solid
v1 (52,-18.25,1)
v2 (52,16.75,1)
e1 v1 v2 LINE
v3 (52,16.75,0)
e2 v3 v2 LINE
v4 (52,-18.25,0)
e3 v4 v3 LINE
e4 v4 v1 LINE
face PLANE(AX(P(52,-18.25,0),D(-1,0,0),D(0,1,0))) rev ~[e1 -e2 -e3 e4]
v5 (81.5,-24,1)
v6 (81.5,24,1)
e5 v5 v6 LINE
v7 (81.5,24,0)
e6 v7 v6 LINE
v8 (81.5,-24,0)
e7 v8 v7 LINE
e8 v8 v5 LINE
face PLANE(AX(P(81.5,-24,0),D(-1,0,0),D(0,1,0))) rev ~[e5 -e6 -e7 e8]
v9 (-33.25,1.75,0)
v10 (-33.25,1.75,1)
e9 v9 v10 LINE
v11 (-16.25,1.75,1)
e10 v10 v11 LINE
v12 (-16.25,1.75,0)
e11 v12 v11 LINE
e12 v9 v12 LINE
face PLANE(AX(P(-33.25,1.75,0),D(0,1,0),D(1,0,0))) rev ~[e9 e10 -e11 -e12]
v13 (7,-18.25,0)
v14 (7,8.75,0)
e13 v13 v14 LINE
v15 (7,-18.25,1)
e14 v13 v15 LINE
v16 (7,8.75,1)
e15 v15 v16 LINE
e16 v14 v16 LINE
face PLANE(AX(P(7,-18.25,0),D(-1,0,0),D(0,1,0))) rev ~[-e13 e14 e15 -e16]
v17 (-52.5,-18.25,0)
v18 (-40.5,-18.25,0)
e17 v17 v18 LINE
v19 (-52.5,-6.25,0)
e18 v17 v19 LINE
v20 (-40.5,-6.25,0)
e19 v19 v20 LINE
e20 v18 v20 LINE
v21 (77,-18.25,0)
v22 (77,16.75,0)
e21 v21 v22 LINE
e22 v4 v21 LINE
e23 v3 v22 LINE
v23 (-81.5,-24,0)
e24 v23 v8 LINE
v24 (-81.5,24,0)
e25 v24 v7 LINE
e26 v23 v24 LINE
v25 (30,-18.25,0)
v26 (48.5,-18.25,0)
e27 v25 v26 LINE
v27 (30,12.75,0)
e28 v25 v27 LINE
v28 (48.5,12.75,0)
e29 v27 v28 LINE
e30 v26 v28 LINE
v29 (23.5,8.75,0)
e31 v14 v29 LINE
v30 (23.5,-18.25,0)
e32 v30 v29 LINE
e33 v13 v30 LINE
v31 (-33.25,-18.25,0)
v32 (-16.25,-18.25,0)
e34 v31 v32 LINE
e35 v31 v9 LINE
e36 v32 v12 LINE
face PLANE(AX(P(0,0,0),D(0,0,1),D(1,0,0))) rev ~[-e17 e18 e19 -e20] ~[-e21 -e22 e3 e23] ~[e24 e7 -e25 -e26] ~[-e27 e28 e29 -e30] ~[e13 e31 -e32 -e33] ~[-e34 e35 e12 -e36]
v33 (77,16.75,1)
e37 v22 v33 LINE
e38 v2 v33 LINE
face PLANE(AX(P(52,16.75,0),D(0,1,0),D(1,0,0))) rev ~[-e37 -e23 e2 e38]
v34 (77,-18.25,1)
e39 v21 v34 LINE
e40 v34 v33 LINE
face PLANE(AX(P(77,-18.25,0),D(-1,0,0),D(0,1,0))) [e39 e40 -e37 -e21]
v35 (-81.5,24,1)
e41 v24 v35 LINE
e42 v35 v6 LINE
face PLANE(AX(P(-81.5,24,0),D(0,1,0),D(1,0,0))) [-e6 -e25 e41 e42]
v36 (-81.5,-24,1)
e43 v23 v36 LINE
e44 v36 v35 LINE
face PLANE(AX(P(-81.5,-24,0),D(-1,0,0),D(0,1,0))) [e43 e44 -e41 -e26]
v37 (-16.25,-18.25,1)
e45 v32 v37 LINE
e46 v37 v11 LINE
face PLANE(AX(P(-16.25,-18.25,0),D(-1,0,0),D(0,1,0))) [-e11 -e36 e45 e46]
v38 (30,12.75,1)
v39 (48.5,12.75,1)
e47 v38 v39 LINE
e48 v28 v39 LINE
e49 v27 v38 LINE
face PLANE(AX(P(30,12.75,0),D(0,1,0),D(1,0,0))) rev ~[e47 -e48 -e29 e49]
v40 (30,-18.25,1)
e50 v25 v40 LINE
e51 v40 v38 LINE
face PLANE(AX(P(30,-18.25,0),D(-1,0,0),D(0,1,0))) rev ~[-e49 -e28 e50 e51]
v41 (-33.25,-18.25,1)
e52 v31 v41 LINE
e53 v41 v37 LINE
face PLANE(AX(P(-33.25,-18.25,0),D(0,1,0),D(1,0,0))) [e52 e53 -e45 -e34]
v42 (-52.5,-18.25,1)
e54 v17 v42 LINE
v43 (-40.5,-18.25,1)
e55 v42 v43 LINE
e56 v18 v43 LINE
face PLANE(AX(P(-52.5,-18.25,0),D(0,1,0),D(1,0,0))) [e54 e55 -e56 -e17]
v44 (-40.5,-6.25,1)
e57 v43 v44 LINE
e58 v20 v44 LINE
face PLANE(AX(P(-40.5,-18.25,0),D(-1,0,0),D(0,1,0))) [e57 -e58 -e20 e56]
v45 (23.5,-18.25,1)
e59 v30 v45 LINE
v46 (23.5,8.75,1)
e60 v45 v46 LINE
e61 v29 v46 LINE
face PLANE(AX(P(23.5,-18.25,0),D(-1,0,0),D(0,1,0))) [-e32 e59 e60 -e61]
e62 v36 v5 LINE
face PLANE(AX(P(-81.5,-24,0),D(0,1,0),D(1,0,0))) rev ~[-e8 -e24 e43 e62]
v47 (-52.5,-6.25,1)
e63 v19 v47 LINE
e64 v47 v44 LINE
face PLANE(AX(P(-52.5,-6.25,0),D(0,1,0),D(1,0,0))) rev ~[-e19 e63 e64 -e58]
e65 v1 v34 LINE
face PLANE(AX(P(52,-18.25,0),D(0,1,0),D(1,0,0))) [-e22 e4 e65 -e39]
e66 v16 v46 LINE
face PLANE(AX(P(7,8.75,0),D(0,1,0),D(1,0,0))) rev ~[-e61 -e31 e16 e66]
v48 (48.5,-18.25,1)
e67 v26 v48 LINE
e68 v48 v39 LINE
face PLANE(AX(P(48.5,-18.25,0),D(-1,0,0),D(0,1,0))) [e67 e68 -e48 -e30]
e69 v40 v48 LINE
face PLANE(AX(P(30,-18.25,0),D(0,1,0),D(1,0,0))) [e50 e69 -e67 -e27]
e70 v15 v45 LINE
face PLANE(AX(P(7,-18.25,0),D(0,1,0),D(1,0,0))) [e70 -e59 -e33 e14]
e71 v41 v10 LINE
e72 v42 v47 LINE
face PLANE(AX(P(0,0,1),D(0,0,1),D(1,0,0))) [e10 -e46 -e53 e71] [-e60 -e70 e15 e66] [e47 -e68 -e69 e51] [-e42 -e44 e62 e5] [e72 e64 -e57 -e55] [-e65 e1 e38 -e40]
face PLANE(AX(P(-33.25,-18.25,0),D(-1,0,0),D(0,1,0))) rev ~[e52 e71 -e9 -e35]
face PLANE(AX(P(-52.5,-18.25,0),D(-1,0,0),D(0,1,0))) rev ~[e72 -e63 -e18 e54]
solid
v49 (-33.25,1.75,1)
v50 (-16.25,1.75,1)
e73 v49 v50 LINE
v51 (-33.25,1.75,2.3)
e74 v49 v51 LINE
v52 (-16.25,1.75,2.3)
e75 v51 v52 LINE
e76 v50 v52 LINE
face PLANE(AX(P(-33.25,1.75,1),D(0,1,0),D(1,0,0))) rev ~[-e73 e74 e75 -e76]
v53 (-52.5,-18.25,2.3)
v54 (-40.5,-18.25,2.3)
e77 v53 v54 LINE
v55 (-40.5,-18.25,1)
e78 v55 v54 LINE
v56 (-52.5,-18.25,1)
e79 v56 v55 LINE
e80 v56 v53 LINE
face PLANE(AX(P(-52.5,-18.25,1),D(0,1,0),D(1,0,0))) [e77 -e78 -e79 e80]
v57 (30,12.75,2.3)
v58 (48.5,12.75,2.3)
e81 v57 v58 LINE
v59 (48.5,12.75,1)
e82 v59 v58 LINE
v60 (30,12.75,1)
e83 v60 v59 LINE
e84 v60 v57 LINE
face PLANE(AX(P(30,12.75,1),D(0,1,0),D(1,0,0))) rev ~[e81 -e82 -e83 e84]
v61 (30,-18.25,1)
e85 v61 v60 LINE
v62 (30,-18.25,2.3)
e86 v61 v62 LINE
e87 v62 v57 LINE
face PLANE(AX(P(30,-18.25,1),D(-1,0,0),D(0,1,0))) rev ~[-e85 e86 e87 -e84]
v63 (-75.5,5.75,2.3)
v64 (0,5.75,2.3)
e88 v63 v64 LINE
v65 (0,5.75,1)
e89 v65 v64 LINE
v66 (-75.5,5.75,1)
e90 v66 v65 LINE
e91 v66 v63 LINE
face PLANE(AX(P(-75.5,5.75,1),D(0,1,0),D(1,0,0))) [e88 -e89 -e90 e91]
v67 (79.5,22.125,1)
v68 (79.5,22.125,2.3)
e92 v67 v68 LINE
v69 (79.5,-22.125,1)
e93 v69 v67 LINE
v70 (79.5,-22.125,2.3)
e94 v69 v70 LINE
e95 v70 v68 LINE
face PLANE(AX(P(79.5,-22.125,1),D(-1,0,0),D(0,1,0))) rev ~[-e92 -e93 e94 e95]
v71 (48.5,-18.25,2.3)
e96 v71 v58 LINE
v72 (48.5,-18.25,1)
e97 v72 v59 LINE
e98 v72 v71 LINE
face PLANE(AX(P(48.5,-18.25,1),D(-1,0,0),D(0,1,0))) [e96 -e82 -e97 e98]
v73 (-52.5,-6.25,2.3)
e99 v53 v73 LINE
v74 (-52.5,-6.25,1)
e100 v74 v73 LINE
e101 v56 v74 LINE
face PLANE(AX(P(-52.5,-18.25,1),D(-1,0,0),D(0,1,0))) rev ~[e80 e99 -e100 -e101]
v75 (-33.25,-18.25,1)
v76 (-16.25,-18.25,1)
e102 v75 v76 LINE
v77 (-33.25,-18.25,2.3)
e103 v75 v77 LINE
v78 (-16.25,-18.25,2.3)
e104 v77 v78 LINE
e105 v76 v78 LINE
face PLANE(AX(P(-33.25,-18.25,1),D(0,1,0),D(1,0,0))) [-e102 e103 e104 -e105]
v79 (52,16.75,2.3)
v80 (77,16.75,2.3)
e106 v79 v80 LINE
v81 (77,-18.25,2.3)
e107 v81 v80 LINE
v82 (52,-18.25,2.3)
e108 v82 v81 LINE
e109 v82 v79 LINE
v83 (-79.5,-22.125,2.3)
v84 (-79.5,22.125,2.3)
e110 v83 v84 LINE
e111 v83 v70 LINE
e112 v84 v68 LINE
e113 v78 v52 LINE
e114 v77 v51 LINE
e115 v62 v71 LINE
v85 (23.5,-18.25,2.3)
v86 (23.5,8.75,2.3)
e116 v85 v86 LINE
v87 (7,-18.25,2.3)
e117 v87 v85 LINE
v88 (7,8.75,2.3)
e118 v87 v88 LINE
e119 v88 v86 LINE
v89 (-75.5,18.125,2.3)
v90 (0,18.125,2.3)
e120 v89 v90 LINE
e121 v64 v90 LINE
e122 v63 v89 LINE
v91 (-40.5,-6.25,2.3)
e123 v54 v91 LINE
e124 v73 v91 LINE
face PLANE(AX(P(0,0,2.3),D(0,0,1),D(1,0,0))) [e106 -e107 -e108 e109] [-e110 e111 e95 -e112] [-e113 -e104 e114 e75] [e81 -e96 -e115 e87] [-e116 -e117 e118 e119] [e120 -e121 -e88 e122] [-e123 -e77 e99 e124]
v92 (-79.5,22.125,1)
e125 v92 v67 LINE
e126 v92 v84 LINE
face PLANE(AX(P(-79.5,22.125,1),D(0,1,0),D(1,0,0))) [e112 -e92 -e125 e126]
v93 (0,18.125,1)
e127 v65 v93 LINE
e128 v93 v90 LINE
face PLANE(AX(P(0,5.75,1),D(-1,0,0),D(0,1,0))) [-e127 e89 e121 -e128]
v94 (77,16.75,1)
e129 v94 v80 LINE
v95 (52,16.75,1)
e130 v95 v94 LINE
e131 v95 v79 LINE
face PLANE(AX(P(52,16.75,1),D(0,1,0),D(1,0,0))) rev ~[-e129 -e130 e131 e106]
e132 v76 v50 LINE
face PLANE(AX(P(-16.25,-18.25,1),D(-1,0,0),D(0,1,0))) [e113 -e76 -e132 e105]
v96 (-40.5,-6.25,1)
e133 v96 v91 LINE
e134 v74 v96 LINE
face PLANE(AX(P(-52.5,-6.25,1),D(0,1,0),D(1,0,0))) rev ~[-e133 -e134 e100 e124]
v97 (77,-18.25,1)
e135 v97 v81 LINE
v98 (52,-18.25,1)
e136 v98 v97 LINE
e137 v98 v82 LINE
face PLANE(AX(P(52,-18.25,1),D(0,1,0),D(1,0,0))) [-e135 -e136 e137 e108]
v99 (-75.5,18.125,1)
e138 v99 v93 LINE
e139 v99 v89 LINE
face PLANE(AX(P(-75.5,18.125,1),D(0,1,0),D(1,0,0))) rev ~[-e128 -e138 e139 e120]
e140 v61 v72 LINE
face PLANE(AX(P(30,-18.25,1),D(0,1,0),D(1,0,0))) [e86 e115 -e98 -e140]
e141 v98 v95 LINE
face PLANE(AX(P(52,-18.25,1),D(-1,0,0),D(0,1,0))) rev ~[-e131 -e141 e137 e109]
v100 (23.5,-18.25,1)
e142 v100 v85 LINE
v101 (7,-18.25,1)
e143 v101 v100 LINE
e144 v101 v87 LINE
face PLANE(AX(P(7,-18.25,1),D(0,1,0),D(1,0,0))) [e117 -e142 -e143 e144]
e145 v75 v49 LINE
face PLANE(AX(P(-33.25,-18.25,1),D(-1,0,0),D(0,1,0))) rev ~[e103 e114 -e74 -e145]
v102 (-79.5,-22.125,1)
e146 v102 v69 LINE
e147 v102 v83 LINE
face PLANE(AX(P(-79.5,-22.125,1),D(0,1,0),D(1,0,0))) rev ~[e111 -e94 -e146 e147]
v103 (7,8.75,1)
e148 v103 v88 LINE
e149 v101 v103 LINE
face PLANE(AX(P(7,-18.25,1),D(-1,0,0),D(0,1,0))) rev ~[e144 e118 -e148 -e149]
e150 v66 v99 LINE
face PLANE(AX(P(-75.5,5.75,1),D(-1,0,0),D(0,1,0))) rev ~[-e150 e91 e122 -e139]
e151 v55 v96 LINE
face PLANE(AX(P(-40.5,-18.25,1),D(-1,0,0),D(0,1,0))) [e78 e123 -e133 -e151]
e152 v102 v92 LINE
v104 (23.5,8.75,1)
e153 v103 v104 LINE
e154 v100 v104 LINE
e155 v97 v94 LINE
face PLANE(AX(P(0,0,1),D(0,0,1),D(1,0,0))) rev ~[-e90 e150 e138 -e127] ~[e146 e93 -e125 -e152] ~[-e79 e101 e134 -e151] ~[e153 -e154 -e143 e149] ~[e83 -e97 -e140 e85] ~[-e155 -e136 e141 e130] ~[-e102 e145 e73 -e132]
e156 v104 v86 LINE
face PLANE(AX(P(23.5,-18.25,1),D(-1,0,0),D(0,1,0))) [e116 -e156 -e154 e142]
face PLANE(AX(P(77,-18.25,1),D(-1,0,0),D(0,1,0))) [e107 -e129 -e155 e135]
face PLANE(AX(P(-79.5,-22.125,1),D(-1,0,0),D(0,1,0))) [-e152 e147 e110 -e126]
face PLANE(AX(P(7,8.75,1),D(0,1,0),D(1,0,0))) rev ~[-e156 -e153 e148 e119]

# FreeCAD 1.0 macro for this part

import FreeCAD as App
import Part
import Sketcher
Q = App.Units.Quantity

doc = App.newDocument("Part")
body = doc.addObject("PartDesign::Body", "Body")

# Sketch on XY plane
sketch1 = body.newObject("Sketcher::SketchObject", "Sketch")
sketch1.AttachmentSupport = (doc.getObject("XY_Plane"), [""])
sketch1.MapMode = "FlatFace"
sketch1.AttachmentOffset = App.Placement(App.Vector(0, 0, 1), App.Rotation())
sketch1.addGeometry([
    Part.LineSegment(App.Vector(-79.5, 22.125, 0), App.Vector(-79.5, -22.125, 0)),  # 0
    Part.LineSegment(App.Vector(-79.5, -22.125, 0), App.Vector(79.5, -22.125, 0)),  # 1
    Part.LineSegment(App.Vector(79.5, -22.125, 0), App.Vector(79.5, 22.125, 0)),  # 2
    Part.LineSegment(App.Vector(79.5, 22.125, 0), App.Vector(-79.5, 22.125, 0)),  # 3
    Part.LineSegment(App.Vector(-40.5, -18.25, 0), App.Vector(-52.5, -18.25, 0)),  # 4
    Part.LineSegment(App.Vector(-52.5, -18.25, 0), App.Vector(-52.5, -6.25, 0)),  # 5
    Part.LineSegment(App.Vector(-52.5, -6.25, 0), App.Vector(-40.5, -6.25, 0)),  # 6
    Part.LineSegment(App.Vector(-40.5, -6.25, 0), App.Vector(-40.5, -18.25, 0)),  # 7
    Part.LineSegment(App.Vector(-16.25, -18.25, 0), App.Vector(-33.25, -18.25, 0)),  # 8
    Part.LineSegment(App.Vector(-33.25, -18.25, 0), App.Vector(-33.25, 1.75, 0)),  # 9
    Part.LineSegment(App.Vector(-33.25, 1.75, 0), App.Vector(-16.25, 1.75, 0)),  # 10
    Part.LineSegment(App.Vector(-16.25, 1.75, 0), App.Vector(-16.25, -18.25, 0)),  # 11
    Part.LineSegment(App.Vector(23.5, -18.25, 0), App.Vector(7, -18.25, 0)),  # 12
    Part.LineSegment(App.Vector(7, -18.25, 0), App.Vector(7, 8.75, 0)),  # 13
    Part.LineSegment(App.Vector(7, 8.75, 0), App.Vector(23.5, 8.75, 0)),  # 14
    Part.LineSegment(App.Vector(23.5, 8.75, 0), App.Vector(23.5, -18.25, 0)),  # 15
    Part.LineSegment(App.Vector(48.5, -18.25, 0), App.Vector(30, -18.25, 0)),  # 16
    Part.LineSegment(App.Vector(30, -18.25, 0), App.Vector(30, 12.75, 0)),  # 17
    Part.LineSegment(App.Vector(30, 12.75, 0), App.Vector(48.5, 12.75, 0)),  # 18
    Part.LineSegment(App.Vector(48.5, 12.75, 0), App.Vector(48.5, -18.25, 0)),  # 19
    Part.LineSegment(App.Vector(77, -18.25, 0), App.Vector(52, -18.25, 0)),  # 20
    Part.LineSegment(App.Vector(52, -18.25, 0), App.Vector(52, 16.75, 0)),  # 21
    Part.LineSegment(App.Vector(52, 16.75, 0), App.Vector(77, 16.75, 0)),  # 22
    Part.LineSegment(App.Vector(77, 16.75, 0), App.Vector(77, -18.25, 0)),  # 23
    Part.LineSegment(App.Vector(0, 5.75, 0), App.Vector(-75.5, 5.75, 0)),  # 24
    Part.LineSegment(App.Vector(-75.5, 5.75, 0), App.Vector(-75.5, 18.125, 0)),  # 25
    Part.LineSegment(App.Vector(-75.5, 18.125, 0), App.Vector(0, 18.125, 0)),  # 26
    Part.LineSegment(App.Vector(0, 18.125, 0), App.Vector(0, 5.75, 0)),  # 27
], False)
sketch1.addConstraint([
    Sketcher.Constraint("Coincident", 0, 2, 1, 1),
    Sketcher.Constraint("Coincident", 1, 2, 2, 1),
    Sketcher.Constraint("Coincident", 2, 2, 3, 1),
    Sketcher.Constraint("Coincident", 3, 2, 0, 1),
    Sketcher.Constraint("Coincident", 4, 2, 5, 1),
    Sketcher.Constraint("Coincident", 5, 2, 6, 1),
    Sketcher.Constraint("Coincident", 6, 2, 7, 1),
    Sketcher.Constraint("Coincident", 7, 2, 4, 1),
    Sketcher.Constraint("Coincident", 8, 2, 9, 1),
    Sketcher.Constraint("Coincident", 9, 2, 10, 1),
    Sketcher.Constraint("Coincident", 10, 2, 11, 1),
    Sketcher.Constraint("Coincident", 11, 2, 8, 1),
    Sketcher.Constraint("Coincident", 12, 2, 13, 1),
    Sketcher.Constraint("Coincident", 13, 2, 14, 1),
    Sketcher.Constraint("Coincident", 14, 2, 15, 1),
    Sketcher.Constraint("Coincident", 15, 2, 12, 1),
    Sketcher.Constraint("Coincident", 16, 2, 17, 1),
    Sketcher.Constraint("Coincident", 17, 2, 18, 1),
    Sketcher.Constraint("Coincident", 18, 2, 19, 1),
    Sketcher.Constraint("Coincident", 19, 2, 16, 1),
    Sketcher.Constraint("Coincident", 20, 2, 21, 1),
    Sketcher.Constraint("Coincident", 21, 2, 22, 1),
    Sketcher.Constraint("Coincident", 22, 2, 23, 1),
    Sketcher.Constraint("Coincident", 23, 2, 20, 1),
    Sketcher.Constraint("Coincident", 24, 2, 25, 1),
    Sketcher.Constraint("Coincident", 25, 2, 26, 1),
    Sketcher.Constraint("Coincident", 26, 2, 27, 1),
    Sketcher.Constraint("Coincident", 27, 2, 24, 1),
    Sketcher.Constraint("Vertical", 0),
    Sketcher.Constraint("Horizontal", 1),
    Sketcher.Constraint("Vertical", 2),
    Sketcher.Constraint("Horizontal", 3),
    Sketcher.Constraint("Horizontal", 4),
    Sketcher.Constraint("Vertical", 5),
    Sketcher.Constraint("Horizontal", 6),
    Sketcher.Constraint("Vertical", 7),
    Sketcher.Constraint("Horizontal", 8),
    Sketcher.Constraint("Vertical", 9),
    Sketcher.Constraint("Horizontal", 10),
    Sketcher.Constraint("Vertical", 11),
    Sketcher.Constraint("Horizontal", 12),
    Sketcher.Constraint("Vertical", 13),
    Sketcher.Constraint("Horizontal", 14),
    Sketcher.Constraint("Vertical", 15),
    Sketcher.Constraint("Horizontal", 16),
    Sketcher.Constraint("Vertical", 17),
    Sketcher.Constraint("Horizontal", 18),
    Sketcher.Constraint("Vertical", 19),
    Sketcher.Constraint("Horizontal", 20),
    Sketcher.Constraint("Vertical", 21),
    Sketcher.Constraint("Horizontal", 22),
    Sketcher.Constraint("Vertical", 23),
    Sketcher.Constraint("Horizontal", 24),
    Sketcher.Constraint("Vertical", 25),
    Sketcher.Constraint("Horizontal", 26),
    Sketcher.Constraint("Vertical", 27),
    Sketcher.Constraint("Symmetric", 0, 2, 2, 2, -1, 1),
    Sketcher.Constraint("PointOnObject", 26, 2, -2),
    Sketcher.Constraint("Horizontal", 7, 2, 8, 2),
    Sketcher.Constraint("Horizontal", 11, 2, 12, 2),
    Sketcher.Constraint("Horizontal", 15, 2, 16, 2),
    Sketcher.Constraint("Horizontal", 19, 2, 20, 2),
    Sketcher.Constraint("Equal", 6, 5),
    Sketcher.Constraint("DistanceX", 1, 1, 1, 2, Q("159 mm")),
    Sketcher.Constraint("DistanceX", 4, 2, 4, 1, Q("12 mm")),
    Sketcher.Constraint("DistanceX", 8, 2, 8, 1, Q("17 mm")),
    Sketcher.Constraint("DistanceX", 20, 2, 20, 1, Q("25 mm")),
    Sketcher.Constraint("DistanceY", 9, 1, 9, 2, Q("20 mm")),
    Sketcher.Constraint("DistanceY", 13, 1, 13, 2, Q("27 mm")),
    Sketcher.Constraint("DistanceY", 17, 1, 17, 2, Q("31 mm")),
    Sketcher.Constraint("DistanceY", 21, 1, 21, 2, Q("35 mm")),
    Sketcher.Constraint("DistanceX", 12, 2, 12, 1, Q("16.5 mm")),
    Sketcher.Constraint("DistanceX", 16, 2, 16, 1, Q("18.5 mm")),
    Sketcher.Constraint("DistanceX", 24, 2, 24, 1, Q("75.5 mm")),
    Sketcher.Constraint("DistanceX", -1, 1, 12, 2, Q("7 mm")),
    Sketcher.Constraint("DistanceX", -1, 1, 16, 2, Q("30 mm")),
    Sketcher.Constraint("DistanceX", -1, 1, 20, 2, Q("52 mm")),
    Sketcher.Constraint("DistanceX", 0, 2, 4, 2, Q("27 mm")),
    Sketcher.Constraint("DistanceY", 5, 2, 24, 2, Q("12 mm")),
    Sketcher.Constraint("DistanceY", 25, 2, 3, 2, Q("4 mm")),
    Sketcher.Constraint("DistanceY", 0, 2, 0, 1, Q("44.25 mm")),
    Sketcher.Constraint("DistanceY", 25, 1, 25, 2, Q("12.375 mm")),
    Sketcher.Constraint("DistanceX", 8, 2, -1, 1, Q("33.25 mm")),
])
pad1 = body.newObject("PartDesign::Pad", "Pad")
pad1.Profile = sketch1
pad1.Length = 1.3
body2 = doc.addObject("PartDesign::Body", "Body001")

# Sketch on XY plane
sketch2 = body2.newObject("Sketcher::SketchObject", "Sketch001")
sketch2.AttachmentSupport = (doc.getObject("XY_Plane001"), [""])
sketch2.MapMode = "FlatFace"
sketch2.addGeometry([
    Part.LineSegment(App.Vector(-81.5, 24, 0), App.Vector(-81.5, -24, 0)),  # 0
    Part.LineSegment(App.Vector(-81.5, -24, 0), App.Vector(81.5, -24, 0)),  # 1
    Part.LineSegment(App.Vector(81.5, -24, 0), App.Vector(81.5, 24, 0)),  # 2
    Part.LineSegment(App.Vector(81.5, 24, 0), App.Vector(-81.5, 24, 0)),  # 3
    Part.LineSegment(App.Vector(-40.5, -18.25, 0), App.Vector(-52.5, -18.25, 0)),  # 4
    Part.LineSegment(App.Vector(-52.5, -18.25, 0), App.Vector(-52.5, -6.25, 0)),  # 5
    Part.LineSegment(App.Vector(-52.5, -6.25, 0), App.Vector(-40.5, -6.25, 0)),  # 6
    Part.LineSegment(App.Vector(-40.5, -6.25, 0), App.Vector(-40.5, -18.25, 0)),  # 7
    Part.LineSegment(App.Vector(-16.25, -18.25, 0), App.Vector(-33.25, -18.25, 0)),  # 8
    Part.LineSegment(App.Vector(-33.25, -18.25, 0), App.Vector(-33.25, 1.75, 0)),  # 9
    Part.LineSegment(App.Vector(-33.25, 1.75, 0), App.Vector(-16.25, 1.75, 0)),  # 10
    Part.LineSegment(App.Vector(-16.25, 1.75, 0), App.Vector(-16.25, -18.25, 0)),  # 11
    Part.LineSegment(App.Vector(23.5, -18.25, 0), App.Vector(7, -18.25, 0)),  # 12
    Part.LineSegment(App.Vector(7, -18.25, 0), App.Vector(7, 8.75, 0)),  # 13
    Part.LineSegment(App.Vector(7, 8.75, 0), App.Vector(23.5, 8.75, 0)),  # 14
    Part.LineSegment(App.Vector(23.5, 8.75, 0), App.Vector(23.5, -18.25, 0)),  # 15
    Part.LineSegment(App.Vector(48.5, -18.25, 0), App.Vector(30, -18.25, 0)),  # 16
    Part.LineSegment(App.Vector(30, -18.25, 0), App.Vector(30, 12.75, 0)),  # 17
    Part.LineSegment(App.Vector(30, 12.75, 0), App.Vector(48.5, 12.75, 0)),  # 18
    Part.LineSegment(App.Vector(48.5, 12.75, 0), App.Vector(48.5, -18.25, 0)),  # 19
    Part.LineSegment(App.Vector(77, -18.25, 0), App.Vector(52, -18.25, 0)),  # 20
    Part.LineSegment(App.Vector(52, -18.25, 0), App.Vector(52, 16.75, 0)),  # 21
    Part.LineSegment(App.Vector(52, 16.75, 0), App.Vector(77, 16.75, 0)),  # 22
    Part.LineSegment(App.Vector(77, 16.75, 0), App.Vector(77, -18.25, 0)),  # 23
], False)
sketch2.addConstraint([
    Sketcher.Constraint("Coincident", 0, 2, 1, 1),
    Sketcher.Constraint("Coincident", 1, 2, 2, 1),
    Sketcher.Constraint("Coincident", 2, 2, 3, 1),
    Sketcher.Constraint("Coincident", 3, 2, 0, 1),
    Sketcher.Constraint("Coincident", 4, 2, 5, 1),
    Sketcher.Constraint("Coincident", 5, 2, 6, 1),
    Sketcher.Constraint("Coincident", 6, 2, 7, 1),
    Sketcher.Constraint("Coincident", 7, 2, 4, 1),
    Sketcher.Constraint("Coincident", 8, 2, 9, 1),
    Sketcher.Constraint("Coincident", 9, 2, 10, 1),
    Sketcher.Constraint("Coincident", 10, 2, 11, 1),
    Sketcher.Constraint("Coincident", 11, 2, 8, 1),
    Sketcher.Constraint("Coincident", 12, 2, 13, 1),
    Sketcher.Constraint("Coincident", 13, 2, 14, 1),
    Sketcher.Constraint("Coincident", 14, 2, 15, 1),
    Sketcher.Constraint("Coincident", 15, 2, 12, 1),
    Sketcher.Constraint("Coincident", 16, 2, 17, 1),
    Sketcher.Constraint("Coincident", 17, 2, 18, 1),
    Sketcher.Constraint("Coincident", 18, 2, 19, 1),
    Sketcher.Constraint("Coincident", 19, 2, 16, 1),
    Sketcher.Constraint("Coincident", 20, 2, 21, 1),
    Sketcher.Constraint("Coincident", 21, 2, 22, 1),
    Sketcher.Constraint("Coincident", 22, 2, 23, 1),
    Sketcher.Constraint("Coincident", 23, 2, 20, 1),
    Sketcher.Constraint("Vertical", 0),
    Sketcher.Constraint("Horizontal", 1),
    Sketcher.Constraint("Vertical", 2),
    Sketcher.Constraint("Horizontal", 3),
    Sketcher.Constraint("Horizontal", 4),
    Sketcher.Constraint("Vertical", 5),
    Sketcher.Constraint("Horizontal", 6),
    Sketcher.Constraint("Vertical", 7),
    Sketcher.Constraint("Horizontal", 8),
    Sketcher.Constraint("Vertical", 9),
    Sketcher.Constraint("Horizontal", 10),
    Sketcher.Constraint("Vertical", 11),
    Sketcher.Constraint("Horizontal", 12),
    Sketcher.Constraint("Vertical", 13),
    Sketcher.Constraint("Horizontal", 14),
    Sketcher.Constraint("Vertical", 15),
    Sketcher.Constraint("Horizontal", 16),
    Sketcher.Constraint("Vertical", 17),
    Sketcher.Constraint("Horizontal", 18),
    Sketcher.Constraint("Vertical", 19),
    Sketcher.Constraint("Horizontal", 20),
    Sketcher.Constraint("Vertical", 21),
    Sketcher.Constraint("Horizontal", 22),
    Sketcher.Constraint("Vertical", 23),
    Sketcher.Constraint("Symmetric", 0, 2, 2, 2, -1, 1),
    Sketcher.Constraint("Horizontal", 7, 2, 8, 2),
    Sketcher.Constraint("Horizontal", 11, 2, 12, 2),
    Sketcher.Constraint("Horizontal", 15, 2, 16, 2),
    Sketcher.Constraint("Horizontal", 19, 2, 20, 2),
    Sketcher.Constraint("Equal", 6, 5),
    Sketcher.Constraint("DistanceX", 1, 1, 1, 2, Q("163 mm")),
    Sketcher.Constraint("DistanceX", 4, 2, 4, 1, Q("12 mm")),
    Sketcher.Constraint("DistanceX", 8, 2, 8, 1, Q("17 mm")),
    Sketcher.Constraint("DistanceX", 20, 2, 20, 1, Q("25 mm")),
    Sketcher.Constraint("DistanceY", 0, 2, 0, 1, Q("48 mm")),
    Sketcher.Constraint("DistanceY", 9, 1, 9, 2, Q("20 mm")),
    Sketcher.Constraint("DistanceY", 13, 1, 13, 2, Q("27 mm")),
    Sketcher.Constraint("DistanceY", 17, 1, 17, 2, Q("31 mm")),
    Sketcher.Constraint("DistanceY", 21, 1, 21, 2, Q("35 mm")),
    Sketcher.Constraint("DistanceX", 12, 2, 12, 1, Q("16.5 mm")),
    Sketcher.Constraint("DistanceX", 16, 2, 16, 1, Q("18.5 mm")),
    Sketcher.Constraint("DistanceX", -1, 1, 12, 2, Q("7 mm")),
    Sketcher.Constraint("DistanceX", -1, 1, 16, 2, Q("30 mm")),
    Sketcher.Constraint("DistanceX", -1, 1, 20, 2, Q("52 mm")),
    Sketcher.Constraint("DistanceX", 0, 2, 4, 2, Q("29 mm")),
    Sketcher.Constraint("DistanceY", 4, 2, -1, 1, Q("18.25 mm")),
    Sketcher.Constraint("DistanceX", 8, 2, -1, 1, Q("33.25 mm")),
])
pad2 = body2.newObject("PartDesign::Pad", "Pad001")
pad2.Profile = sketch2
pad2.Length = 1

doc.recompute()
